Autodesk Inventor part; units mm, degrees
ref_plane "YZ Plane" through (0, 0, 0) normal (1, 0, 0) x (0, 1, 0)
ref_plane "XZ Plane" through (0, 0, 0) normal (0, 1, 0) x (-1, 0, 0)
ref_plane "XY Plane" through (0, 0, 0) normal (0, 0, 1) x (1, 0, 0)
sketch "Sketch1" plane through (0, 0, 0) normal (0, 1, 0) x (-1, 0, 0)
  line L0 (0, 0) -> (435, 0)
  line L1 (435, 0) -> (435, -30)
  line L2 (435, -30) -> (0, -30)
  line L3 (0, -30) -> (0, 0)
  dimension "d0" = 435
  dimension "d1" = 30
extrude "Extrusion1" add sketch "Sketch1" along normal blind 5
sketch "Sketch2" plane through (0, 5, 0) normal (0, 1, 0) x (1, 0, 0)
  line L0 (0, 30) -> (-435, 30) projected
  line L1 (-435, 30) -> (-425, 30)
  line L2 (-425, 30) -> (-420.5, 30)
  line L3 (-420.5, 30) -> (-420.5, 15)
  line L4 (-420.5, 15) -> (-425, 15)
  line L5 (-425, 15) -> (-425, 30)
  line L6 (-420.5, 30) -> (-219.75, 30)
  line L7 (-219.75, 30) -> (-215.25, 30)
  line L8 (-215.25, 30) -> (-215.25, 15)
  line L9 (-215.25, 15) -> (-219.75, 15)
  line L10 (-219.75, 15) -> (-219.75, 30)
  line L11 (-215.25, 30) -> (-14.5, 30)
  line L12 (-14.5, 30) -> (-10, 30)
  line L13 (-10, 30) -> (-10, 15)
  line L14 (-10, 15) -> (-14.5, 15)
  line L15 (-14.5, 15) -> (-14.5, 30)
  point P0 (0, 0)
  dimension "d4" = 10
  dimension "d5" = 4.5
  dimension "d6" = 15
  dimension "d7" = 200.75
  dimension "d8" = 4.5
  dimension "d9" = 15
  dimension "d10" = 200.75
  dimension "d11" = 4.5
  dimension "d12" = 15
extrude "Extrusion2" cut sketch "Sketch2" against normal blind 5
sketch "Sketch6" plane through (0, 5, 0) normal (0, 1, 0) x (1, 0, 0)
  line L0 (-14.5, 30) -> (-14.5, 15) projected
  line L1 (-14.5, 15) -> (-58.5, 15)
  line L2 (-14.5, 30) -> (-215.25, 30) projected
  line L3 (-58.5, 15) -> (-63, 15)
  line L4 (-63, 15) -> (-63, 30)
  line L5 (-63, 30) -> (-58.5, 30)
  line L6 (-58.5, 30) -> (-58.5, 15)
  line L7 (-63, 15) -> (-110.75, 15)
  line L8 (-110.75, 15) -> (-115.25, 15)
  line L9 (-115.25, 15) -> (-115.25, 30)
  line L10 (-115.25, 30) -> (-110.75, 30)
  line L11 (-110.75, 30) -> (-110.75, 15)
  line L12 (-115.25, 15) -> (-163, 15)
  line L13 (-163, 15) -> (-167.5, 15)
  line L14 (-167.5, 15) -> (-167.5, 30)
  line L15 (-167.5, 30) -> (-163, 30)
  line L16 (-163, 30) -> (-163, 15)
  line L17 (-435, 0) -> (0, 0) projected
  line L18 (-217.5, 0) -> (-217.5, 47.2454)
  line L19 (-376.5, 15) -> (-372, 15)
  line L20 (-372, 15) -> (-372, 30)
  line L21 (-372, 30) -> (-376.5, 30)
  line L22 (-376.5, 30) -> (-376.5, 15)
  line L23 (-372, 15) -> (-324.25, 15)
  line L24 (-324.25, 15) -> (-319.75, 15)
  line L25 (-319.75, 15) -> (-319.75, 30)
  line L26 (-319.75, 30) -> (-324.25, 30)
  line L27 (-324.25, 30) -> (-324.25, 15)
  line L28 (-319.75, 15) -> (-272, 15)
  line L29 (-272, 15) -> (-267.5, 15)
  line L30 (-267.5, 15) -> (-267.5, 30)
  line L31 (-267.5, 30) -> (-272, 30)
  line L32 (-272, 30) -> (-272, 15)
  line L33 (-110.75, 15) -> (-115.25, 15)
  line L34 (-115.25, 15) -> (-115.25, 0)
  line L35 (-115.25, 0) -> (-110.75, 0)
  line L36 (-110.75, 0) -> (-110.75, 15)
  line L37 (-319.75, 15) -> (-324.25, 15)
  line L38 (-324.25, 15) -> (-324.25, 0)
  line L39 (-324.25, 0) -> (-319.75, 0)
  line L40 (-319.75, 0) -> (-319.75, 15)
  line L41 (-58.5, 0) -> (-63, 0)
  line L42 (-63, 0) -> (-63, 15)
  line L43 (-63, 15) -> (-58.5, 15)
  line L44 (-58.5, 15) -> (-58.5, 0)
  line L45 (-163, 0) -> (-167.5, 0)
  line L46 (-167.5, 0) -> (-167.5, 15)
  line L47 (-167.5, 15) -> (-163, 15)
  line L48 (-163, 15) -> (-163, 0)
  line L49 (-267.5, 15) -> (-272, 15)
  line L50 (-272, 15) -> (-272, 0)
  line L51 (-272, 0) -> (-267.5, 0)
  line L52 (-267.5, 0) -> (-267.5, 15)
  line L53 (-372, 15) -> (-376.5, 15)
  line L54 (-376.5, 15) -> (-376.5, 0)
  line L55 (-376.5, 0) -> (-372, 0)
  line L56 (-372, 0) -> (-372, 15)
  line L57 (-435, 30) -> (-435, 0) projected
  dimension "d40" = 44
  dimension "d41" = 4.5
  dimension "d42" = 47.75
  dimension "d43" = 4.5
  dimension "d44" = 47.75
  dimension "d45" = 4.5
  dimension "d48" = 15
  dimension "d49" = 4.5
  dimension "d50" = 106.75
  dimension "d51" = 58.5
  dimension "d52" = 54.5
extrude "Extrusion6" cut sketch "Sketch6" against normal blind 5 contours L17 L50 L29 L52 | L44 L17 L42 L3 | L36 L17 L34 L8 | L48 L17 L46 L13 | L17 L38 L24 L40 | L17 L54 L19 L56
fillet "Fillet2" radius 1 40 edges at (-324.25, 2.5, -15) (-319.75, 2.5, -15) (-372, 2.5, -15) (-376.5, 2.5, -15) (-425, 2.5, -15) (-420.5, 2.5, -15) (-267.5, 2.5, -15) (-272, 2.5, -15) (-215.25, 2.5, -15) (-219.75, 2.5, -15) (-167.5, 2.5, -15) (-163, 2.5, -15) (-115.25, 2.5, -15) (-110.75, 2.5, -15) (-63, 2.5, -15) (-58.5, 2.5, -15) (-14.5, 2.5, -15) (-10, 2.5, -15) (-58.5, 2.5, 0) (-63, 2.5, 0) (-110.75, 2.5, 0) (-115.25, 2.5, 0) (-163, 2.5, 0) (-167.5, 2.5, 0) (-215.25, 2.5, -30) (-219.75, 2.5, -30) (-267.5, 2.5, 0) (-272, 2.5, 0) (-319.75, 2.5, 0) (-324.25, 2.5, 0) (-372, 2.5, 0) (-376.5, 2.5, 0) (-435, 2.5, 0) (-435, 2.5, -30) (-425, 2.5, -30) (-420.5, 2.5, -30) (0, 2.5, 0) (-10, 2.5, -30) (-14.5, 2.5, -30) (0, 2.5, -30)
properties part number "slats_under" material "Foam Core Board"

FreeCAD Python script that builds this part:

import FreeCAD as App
import Part
import Sketcher
from FreeCAD import Vector


def edges_at(feature, points):
    """Names of the edges that pass closest to the given points."""
    edges = feature.Shape.Edges
    near = lambda p: min(range(len(edges)), key=lambda i: edges[i].distToShape(Part.Vertex(*p))[0])
    return sorted({f"Edge{near(p) + 1}" for p in points})


def add_polygon(sketch, points):
    """Adds a closed chain of lines whose ends are joined by coincident constraints."""
    first, n = sketch.GeometryCount, len(points)
    for a, b in zip(points, points[1:] + points[:1]):
        sketch.addGeometry(Part.LineSegment(App.Vector(*a, 0), App.Vector(*b, 0)), False)
    for i in range(n):
        sketch.addConstraint(Sketcher.Constraint("Coincident", first + i, 2, first + (i + 1) % n, 1))

doc = App.newDocument("Part")
body = doc.addObject("PartDesign::Body", "Body")

# Sketch on XZ plane
sketch1 = body.newObject("Sketcher::SketchObject", "Sketch")
sketch1.AttachmentSupport = (doc.getObject("XZ_Plane"), [""])
sketch1.MapMode = "FlatFace"
add_polygon(sketch1, [(-435, 0), (0, 0), (0, -30), (-435, -30)])  # lines 0-3
sketch1.addConstraint(Sketcher.Constraint("Horizontal", 0))
sketch1.addConstraint(Sketcher.Constraint("Vertical", 1))
sketch1.addConstraint(Sketcher.Constraint("Horizontal", 2))
sketch1.addConstraint(Sketcher.Constraint("Vertical", 3))
sketch1.addConstraint(Sketcher.Constraint("Coincident", 0, 2, -1, 1))
sketch1.addConstraint(Sketcher.Constraint("DistanceX", 0, 1, 0, 2, 435.0))
sketch1.addConstraint(Sketcher.Constraint("DistanceY", 1, 2, 1, 1, 30.0))
pad1 = body.newObject("PartDesign::Pad", "Pad")
pad1.Profile = sketch1
pad1.Length = 5
pad1.Reversed = True

# Sketch on XZ plane
sketch2 = body.newObject("Sketcher::SketchObject", "Sketch001")
sketch2.AttachmentSupport = (doc.getObject("XZ_Plane"), [""])
sketch2.MapMode = "FlatFace"
sketch2.AttachmentOffset = App.Placement(Vector(0, 0, -5), App.Rotation())
add_polygon(sketch2, [(-10, -15), (-10, -30), (-14.5, -30), (-14.5, -15)])  # lines 0-3
add_polygon(sketch2, [(-420.5, -15), (-420.5, -30), (-425, -30), (-425, -15)])  # lines 4-7
add_polygon(sketch2, [(-215.25, -15), (-215.25, -30), (-219.75, -30), (-219.75, -15)])  # lines 8-11
sketch2.addConstraint(Sketcher.Constraint("Vertical", 0))
sketch2.addConstraint(Sketcher.Constraint("Horizontal", 1))
sketch2.addConstraint(Sketcher.Constraint("Vertical", 2))
sketch2.addConstraint(Sketcher.Constraint("Horizontal", 3))
sketch2.addConstraint(Sketcher.Constraint("Vertical", 4))
sketch2.addConstraint(Sketcher.Constraint("Horizontal", 5))
sketch2.addConstraint(Sketcher.Constraint("Vertical", 6))
sketch2.addConstraint(Sketcher.Constraint("Horizontal", 7))
sketch2.addConstraint(Sketcher.Constraint("Vertical", 8))
sketch2.addConstraint(Sketcher.Constraint("Horizontal", 9))
sketch2.addConstraint(Sketcher.Constraint("Vertical", 10))
sketch2.addConstraint(Sketcher.Constraint("Horizontal", 11))
sketch2.addConstraint(Sketcher.Constraint("Horizontal", 1, 2, 4, 2))
sketch2.addConstraint(Sketcher.Constraint("Horizontal", 3, 2, 6, 2))
sketch2.addConstraint(Sketcher.Constraint("Horizontal", 5, 2, 8, 2))
sketch2.addConstraint(Sketcher.Constraint("Horizontal", 7, 2, 10, 2))
sketch2.addConstraint(Sketcher.Constraint("Equal", 3, 5))
sketch2.addConstraint(Sketcher.Constraint("Equal", 7, 9))
sketch2.addConstraint(Sketcher.Constraint("DistanceY", 0, 2, 0, 1, 15.0))
sketch2.addConstraint(Sketcher.Constraint("DistanceX", 1, 2, 1, 1, 4.5))
sketch2.addConstraint(Sketcher.Constraint("DistanceX", 0, 2, -1, 1, 10.0))
sketch2.addConstraint(Sketcher.Constraint("DistanceY", 2, 2, -1, 1, 15.0))
sketch2.addConstraint(Sketcher.Constraint("DistanceX", 8, 2, 1, 2, 200.75))
sketch2.addConstraint(Sketcher.Constraint("DistanceX", 4, 2, 9, 2, 200.75))
pocket1 = body.newObject("PartDesign::Pocket", "Pocket")
pocket1.Profile = sketch2
pocket1.Length = 5
pocket1.Reversed = True

# Sketch on XZ plane
sketch3 = body.newObject("Sketcher::SketchObject", "Sketch002")
sketch3.AttachmentSupport = (doc.getObject("XZ_Plane"), [""])
sketch3.MapMode = "FlatFace"
sketch3.AttachmentOffset = App.Placement(Vector(0, 0, -5), App.Rotation())
add_polygon(sketch3, [(-272, 0), (-267.5, 0), (-267.5, -15), (-272, -15)])  # lines 0-3
add_polygon(sketch3, [(-58.5, 0), (-58.5, -15), (-63, -15), (-63, 0)])  # lines 4-7
add_polygon(sketch3, [(-110.75, 0), (-110.75, -15), (-115.25, -15), (-115.25, 0)])  # lines 8-11
add_polygon(sketch3, [(-163, 0), (-163, -15), (-167.5, -15), (-167.5, 0)])  # lines 12-15
add_polygon(sketch3, [(-324.25, 0), (-319.75, 0), (-319.75, -15), (-324.25, -15)])  # lines 16-19
add_polygon(sketch3, [(-376.5, 0), (-372, 0), (-372, -15), (-376.5, -15)])  # lines 20-23
sketch3.addConstraint(Sketcher.Constraint("Horizontal", 0))
sketch3.addConstraint(Sketcher.Constraint("Vertical", 1))
sketch3.addConstraint(Sketcher.Constraint("Horizontal", 2))
sketch3.addConstraint(Sketcher.Constraint("Vertical", 3))
sketch3.addConstraint(Sketcher.Constraint("Vertical", 4))
sketch3.addConstraint(Sketcher.Constraint("Horizontal", 5))
sketch3.addConstraint(Sketcher.Constraint("Vertical", 6))
sketch3.addConstraint(Sketcher.Constraint("Horizontal", 7))
sketch3.addConstraint(Sketcher.Constraint("Vertical", 8))
sketch3.addConstraint(Sketcher.Constraint("Horizontal", 9))
sketch3.addConstraint(Sketcher.Constraint("Vertical", 10))
sketch3.addConstraint(Sketcher.Constraint("Horizontal", 11))
sketch3.addConstraint(Sketcher.Constraint("Vertical", 12))
sketch3.addConstraint(Sketcher.Constraint("Horizontal", 13))
sketch3.addConstraint(Sketcher.Constraint("Vertical", 14))
sketch3.addConstraint(Sketcher.Constraint("Horizontal", 15))
sketch3.addConstraint(Sketcher.Constraint("Horizontal", 16))
sketch3.addConstraint(Sketcher.Constraint("Vertical", 17))
sketch3.addConstraint(Sketcher.Constraint("Horizontal", 18))
sketch3.addConstraint(Sketcher.Constraint("Vertical", 19))
sketch3.addConstraint(Sketcher.Constraint("Horizontal", 20))
sketch3.addConstraint(Sketcher.Constraint("Vertical", 21))
sketch3.addConstraint(Sketcher.Constraint("Horizontal", 22))
sketch3.addConstraint(Sketcher.Constraint("Vertical", 23))
sketch3.addConstraint(Sketcher.Constraint("PointOnObject", 0, 2, -1))
sketch3.addConstraint(Sketcher.Constraint("PointOnObject", 6, 2, -1))
sketch3.addConstraint(Sketcher.Constraint("PointOnObject", 10, 2, -1))
sketch3.addConstraint(Sketcher.Constraint("PointOnObject", 14, 2, -1))
sketch3.addConstraint(Sketcher.Constraint("PointOnObject", 16, 2, -1))
sketch3.addConstraint(Sketcher.Constraint("PointOnObject", 20, 2, -1))
sketch3.addConstraint(Sketcher.Constraint("Horizontal", 2, 2, 4, 2))
sketch3.addConstraint(Sketcher.Constraint("Horizontal", 5, 2, 8, 2))
sketch3.addConstraint(Sketcher.Constraint("Horizontal", 9, 2, 12, 2))
sketch3.addConstraint(Sketcher.Constraint("Horizontal", 13, 2, 17, 2))
sketch3.addConstraint(Sketcher.Constraint("Horizontal", 18, 2, 21, 2))
sketch3.addConstraint(Sketcher.Constraint("Equal", 2, 5))
sketch3.addConstraint(Sketcher.Constraint("Equal", 7, 9))
sketch3.addConstraint(Sketcher.Constraint("Equal", 11, 13))
sketch3.addConstraint(Sketcher.Constraint("Equal", 15, 16))
sketch3.addConstraint(Sketcher.Constraint("Equal", 18, 20))
sketch3.addConstraint(Sketcher.Constraint("DistanceY", 1, 2, 1, 1, 15.0))
sketch3.addConstraint(Sketcher.Constraint("DistanceX", 0, 1, 0, 2, 4.5))
sketch3.addConstraint(Sketcher.Constraint("DistanceX", 4, 2, -1, 1, 58.5))
sketch3.addConstraint(Sketcher.Constraint("DistanceX", 8, 2, 5, 2, 47.75))
sketch3.addConstraint(Sketcher.Constraint("DistanceX", 12, 2, 9, 2, 47.75))
sketch3.addConstraint(Sketcher.Constraint("DistanceX", 16, 2, 3, 2, 47.75))
sketch3.addConstraint(Sketcher.Constraint("DistanceX", 20, 2, 19, 2, 47.75))
sketch3.addConstraint(Sketcher.Constraint("DistanceX", 2, 2, -1, 1, 272.0))
pocket2 = body.newObject("PartDesign::Pocket", "Pocket001")
pocket2.Profile = sketch3
pocket2.Length = 5
pocket2.Reversed = True
doc.recompute()

fillet = body.newObject("PartDesign::Fillet", "Fillet")
fillet.Base = (pocket2, edges_at(pocket2, [
    (-324.25, 2.5, -15),
    (-319.75, 2.5, -15),
    (-372, 2.5, -15),
    (-376.5, 2.5, -15),
    (-425, 2.5, -15),
    (-420.5, 2.5, -15),
    (-267.5, 2.5, -15),
    (-272, 2.5, -15),
    (-215.25, 2.5, -15),
    (-219.75, 2.5, -15),
    (-167.5, 2.5, -15),
    (-163, 2.5, -15),
    (-115.25, 2.5, -15),
    (-110.75, 2.5, -15),
    (-63, 2.5, -15),
    (-58.5, 2.5, -15),
    (-14.5, 2.5, -15),
    (-10, 2.5, -15),
    (-58.5, 2.5, 0),
    (-63, 2.5, 0),
    (-110.75, 2.5, 0),
    (-115.25, 2.5, 0),
    (-163, 2.5, 0),
    (-167.5, 2.5, 0),
    (-215.25, 2.5, -30),
    (-219.75, 2.5, -30),
    (-267.5, 2.5, 0),
    (-272, 2.5, 0),
    (-319.75, 2.5, 0),
    (-324.25, 2.5, 0),
    (-372, 2.5, 0),
    (-376.5, 2.5, 0),
    (-435, 2.5, 0),
    (-435, 2.5, -30),
    (-425, 2.5, -30),
    (-420.5, 2.5, -30),
    (0, 2.5, 0),
    (-10, 2.5, -30),
    (-14.5, 2.5, -30),
    (0, 2.5, -30),
]))
fillet.Radius = 1

doc.recompute()
